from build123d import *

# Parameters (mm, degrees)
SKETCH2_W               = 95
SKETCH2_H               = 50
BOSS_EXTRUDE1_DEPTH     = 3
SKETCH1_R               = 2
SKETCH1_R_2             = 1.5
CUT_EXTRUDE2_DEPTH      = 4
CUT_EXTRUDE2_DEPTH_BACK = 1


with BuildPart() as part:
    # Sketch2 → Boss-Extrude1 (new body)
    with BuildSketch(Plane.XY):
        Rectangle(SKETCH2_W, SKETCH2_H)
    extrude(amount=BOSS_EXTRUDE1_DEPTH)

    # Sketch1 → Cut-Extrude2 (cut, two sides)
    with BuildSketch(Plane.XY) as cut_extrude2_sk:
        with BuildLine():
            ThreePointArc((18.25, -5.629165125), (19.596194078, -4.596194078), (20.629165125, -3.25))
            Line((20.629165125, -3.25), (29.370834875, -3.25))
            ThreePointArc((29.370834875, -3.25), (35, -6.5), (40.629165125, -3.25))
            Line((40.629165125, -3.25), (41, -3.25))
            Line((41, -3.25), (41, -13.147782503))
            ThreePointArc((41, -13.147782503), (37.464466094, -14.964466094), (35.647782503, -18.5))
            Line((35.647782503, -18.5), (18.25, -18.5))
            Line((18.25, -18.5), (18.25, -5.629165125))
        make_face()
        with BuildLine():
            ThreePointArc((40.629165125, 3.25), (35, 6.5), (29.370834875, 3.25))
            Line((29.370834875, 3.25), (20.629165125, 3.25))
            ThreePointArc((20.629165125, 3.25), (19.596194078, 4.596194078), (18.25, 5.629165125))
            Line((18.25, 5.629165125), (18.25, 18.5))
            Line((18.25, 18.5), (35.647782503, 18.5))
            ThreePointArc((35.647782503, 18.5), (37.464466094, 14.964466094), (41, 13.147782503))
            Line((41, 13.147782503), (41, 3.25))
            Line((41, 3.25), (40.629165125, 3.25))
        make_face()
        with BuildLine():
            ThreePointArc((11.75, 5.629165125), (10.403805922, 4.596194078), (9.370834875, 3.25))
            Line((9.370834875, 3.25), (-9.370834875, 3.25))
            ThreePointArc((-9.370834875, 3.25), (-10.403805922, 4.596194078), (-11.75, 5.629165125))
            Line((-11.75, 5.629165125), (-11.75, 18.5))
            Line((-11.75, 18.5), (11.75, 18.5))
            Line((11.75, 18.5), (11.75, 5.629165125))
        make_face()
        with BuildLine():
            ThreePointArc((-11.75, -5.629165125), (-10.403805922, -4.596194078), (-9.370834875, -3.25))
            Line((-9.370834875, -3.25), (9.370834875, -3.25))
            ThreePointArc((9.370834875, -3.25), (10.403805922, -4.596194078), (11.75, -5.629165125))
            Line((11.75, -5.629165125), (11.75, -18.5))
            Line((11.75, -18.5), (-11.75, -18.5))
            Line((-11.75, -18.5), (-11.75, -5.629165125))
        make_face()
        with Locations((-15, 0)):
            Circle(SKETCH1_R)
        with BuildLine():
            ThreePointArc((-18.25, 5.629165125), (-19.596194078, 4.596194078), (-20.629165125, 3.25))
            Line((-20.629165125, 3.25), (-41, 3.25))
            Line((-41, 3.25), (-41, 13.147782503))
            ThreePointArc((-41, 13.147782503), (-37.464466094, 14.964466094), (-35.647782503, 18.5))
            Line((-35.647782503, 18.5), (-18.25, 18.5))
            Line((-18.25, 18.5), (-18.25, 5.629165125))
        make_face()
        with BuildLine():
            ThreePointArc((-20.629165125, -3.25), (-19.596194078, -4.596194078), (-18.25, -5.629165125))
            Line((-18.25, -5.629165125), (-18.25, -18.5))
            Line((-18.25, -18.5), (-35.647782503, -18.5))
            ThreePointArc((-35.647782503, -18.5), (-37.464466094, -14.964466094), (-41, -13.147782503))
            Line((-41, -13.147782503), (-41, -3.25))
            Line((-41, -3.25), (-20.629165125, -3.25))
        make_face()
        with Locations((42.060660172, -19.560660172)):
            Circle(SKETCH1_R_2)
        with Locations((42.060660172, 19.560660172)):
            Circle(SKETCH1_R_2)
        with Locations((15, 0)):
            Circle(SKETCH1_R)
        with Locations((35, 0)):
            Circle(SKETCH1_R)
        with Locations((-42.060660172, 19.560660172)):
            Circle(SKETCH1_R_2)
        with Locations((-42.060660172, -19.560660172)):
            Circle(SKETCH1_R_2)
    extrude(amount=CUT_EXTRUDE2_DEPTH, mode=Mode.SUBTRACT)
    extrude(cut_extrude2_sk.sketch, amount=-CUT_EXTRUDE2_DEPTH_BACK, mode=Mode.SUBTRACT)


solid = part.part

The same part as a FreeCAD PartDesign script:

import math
import FreeCAD as App
import Part
import Sketcher

V = App.Vector

doc = App.newDocument("Part")
params = doc.addObject("Spreadsheet::Sheet", "Params")
for row, (alias, value) in enumerate([
    ("sketch1_width", "95 mm"),
    ("sketch1_height", "50 mm"),
    ("pad1_length", "3 mm"),
    ("sketch2_diameter", "4 mm"),
    ("sketch2_diameter2", "3 mm"),
    ("sketch2_radius", "6.5 mm"),
    ("sketch2_width", "23.5 mm"),
], start=1):
    params.set(f"A{row}", alias)
    params.set(f"B{row}", "=" + value)
    params.setAlias(f"B{row}", alias)

body = doc.addObject("PartDesign::Body", "Body")

# Sketch on XY plane
sketch1 = body.newObject("Sketcher::SketchObject", "Sketch")
sketch1.AttachmentSupport = (doc.getObject("XY_Plane"), [""])
sketch1.MapMode = "FlatFace"
sketch1.addGeometry([
    Part.LineSegment(V(-48, 25, 0), V(-48, -25, 0)),
    Part.LineSegment(V(-48, -25, 0), V(48, -25, 0)),
    Part.LineSegment(V(48, -25, 0), V(48, 25, 0)),
    Part.LineSegment(V(48, 25, 0), V(-48, 25, 0)),
], False)
sketch1.addConstraint([
    Sketcher.Constraint("Coincident", 0, 2, 1, 1),
    Sketcher.Constraint("Coincident", 1, 2, 2, 1),
    Sketcher.Constraint("Coincident", 2, 2, 3, 1),
    Sketcher.Constraint("Coincident", 3, 2, 0, 1),
    Sketcher.Constraint("Vertical", 0),
    Sketcher.Constraint("Horizontal", 1),
    Sketcher.Constraint("Vertical", 2),
    Sketcher.Constraint("Horizontal", 3),
    Sketcher.Constraint("Symmetric", 0, 2, 2, 2, -1, 1),
    Sketcher.Constraint("DistanceX", 1, 1, 1, 2, 95.0),
    Sketcher.Constraint("DistanceY", 0, 2, 0, 1, 50.0),
])
sketch1.setExpression("Constraints[9]", "Params.sketch1_width")
sketch1.setExpression("Constraints[10]", "Params.sketch1_height")
pad1 = body.newObject("PartDesign::Pad", "Pad")
pad1.Profile = sketch1
pad1.setExpression("Length", "Params.pad1_length")

# Sketch on XY plane
sketch2 = body.newObject("Sketcher::SketchObject", "Sketch001")
sketch2.AttachmentSupport = (doc.getObject("XY_Plane"), [""])
sketch2.MapMode = "FlatFace"
sketch2.addGeometry([
    Part.ArcOfCircle(Part.Circle(V(15, 0, 0), V(0, 0, 1), 6.5), math.radians(-60), math.radians(-30)),  # 0
    Part.LineSegment(V(18.25, -5.63, 0), V(18.25, -18.5, 0)),  # 1
    Part.LineSegment(V(18.25, -18.5, 0), V(35.65, -18.5, 0)),  # 2
    Part.ArcOfCircle(Part.Circle(V(42.06, -19.56, 0), V(0, 0, 1), 6.5), math.radians(99), math.radians(171)),  # 3
    Part.LineSegment(V(41, -13.15, 0), V(41, -3.25, 0)),  # 4
    Part.LineSegment(V(41, -3.25, 0), V(40.63, -3.25, 0)),  # 5
    Part.ArcOfCircle(Part.Circle(V(35, 0, 0), V(0, 0, 1), 6.5), math.radians(-150), math.radians(-30)),  # 6
    Part.LineSegment(V(29.37, -3.25, 0), V(20.63, -3.25, 0)),  # 7
    Part.ArcOfCircle(Part.Circle(V(35, 0, 0), V(0, 0, 1), 6.5), math.radians(30), math.radians(150)),  # 8
    Part.LineSegment(V(40.63, 3.25, 0), V(41, 3.25, 0)),  # 9
    Part.LineSegment(V(41, 3.25, 0), V(41, 13.15, 0)),  # 10
    Part.ArcOfCircle(Part.Circle(V(42.06, 19.56, 0), V(0, 0, 1), 6.5), math.radians(-171), math.radians(-99)),  # 11
    Part.LineSegment(V(35.65, 18.5, 0), V(18.25, 18.5, 0)),  # 12
    Part.LineSegment(V(18.25, 18.5, 0), V(18.25, 5.63, 0)),  # 13
    Part.ArcOfCircle(Part.Circle(V(15, 0, 0), V(0, 0, 1), 6.5), math.radians(30), math.radians(60)),  # 14
    Part.LineSegment(V(20.63, 3.25, 0), V(29.37, 3.25, 0)),  # 15
    Part.ArcOfCircle(Part.Circle(V(15, 0, 0), V(0, 0, 1), 6.5), math.radians(120), math.radians(150)),  # 16
    Part.LineSegment(V(11.75, 5.63, 0), V(11.75, 18.5, 0)),  # 17
    Part.LineSegment(V(11.75, 18.5, 0), V(-11.75, 18.5, 0)),  # 18
    Part.LineSegment(V(-11.75, 18.5, 0), V(-11.75, 5.63, 0)),  # 19
    Part.ArcOfCircle(Part.Circle(V(-15, 0, 0), V(0, 0, 1), 6.5), math.radians(30), math.radians(60)),  # 20
    Part.LineSegment(V(-9.37, 3.25, 0), V(9.37, 3.25, 0)),  # 21
    Part.ArcOfCircle(Part.Circle(V(-15, 0, 0), V(0, 0, 1), 6.5), math.radians(-60), math.radians(-30)),  # 22
    Part.LineSegment(V(-11.75, -5.63, 0), V(-11.75, -18.5, 0)),  # 23
    Part.LineSegment(V(-11.75, -18.5, 0), V(11.75, -18.5, 0)),  # 24
    Part.LineSegment(V(11.75, -18.5, 0), V(11.75, -5.63, 0)),  # 25
    Part.ArcOfCircle(Part.Circle(V(15, 0, 0), V(0, 0, 1), 6.5), math.radians(-150), math.radians(-120)),  # 26
    Part.LineSegment(V(9.37, -3.25, 0), V(-9.37, -3.25, 0)),  # 27
    Part.Circle(V(-15, 0, 0), V(0, 0, 1), 2),  # 28
    Part.ArcOfCircle(Part.Circle(V(-15, 0, 0), V(0, 0, 1), 6.5), math.radians(120), math.radians(150)),  # 29
    Part.LineSegment(V(-18.25, 5.63, 0), V(-18.25, 18.5, 0)),  # 30
    Part.LineSegment(V(-18.25, 18.5, 0), V(-35.65, 18.5, 0)),  # 31
    Part.ArcOfCircle(Part.Circle(V(-42.06, 19.56, 0), V(0, 0, 1), 6.5), math.radians(-81), math.radians(-9)),  # 32
    Part.LineSegment(V(-41, 13.15, 0), V(-41, 3.25, 0)),  # 33
    Part.LineSegment(V(-41, 3.25, 0), V(-20.63, 3.25, 0)),  # 34
    Part.ArcOfCircle(Part.Circle(V(-15, 0, 0), V(0, 0, 1), 6.5), math.radians(-150), math.radians(-120)),  # 35
    Part.LineSegment(V(-20.63, -3.25, 0), V(-41, -3.25, 0)),  # 36
    Part.LineSegment(V(-41, -3.25, 0), V(-41, -13.15, 0)),  # 37
    Part.ArcOfCircle(Part.Circle(V(-42.06, -19.56, 0), V(0, 0, 1), 6.5), math.radians(9), math.radians(81)),  # 38
    Part.LineSegment(V(-35.65, -18.5, 0), V(-18.25, -18.5, 0)),  # 39
    Part.LineSegment(V(-18.25, -18.5, 0), V(-18.25, -5.63, 0)),  # 40
    Part.Circle(V(42.06, -19.56, 0), V(0, 0, 1), 1.5),  # 41
    Part.Circle(V(42.06, 19.56, 0), V(0, 0, 1), 1.5),  # 42
    Part.Circle(V(15, 0, 0), V(0, 0, 1), 2),  # 43
    Part.Circle(V(35, 0, 0), V(0, 0, 1), 2),  # 44
    Part.Circle(V(-42.06, 19.56, 0), V(0, 0, 1), 1.5),  # 45
    Part.Circle(V(-42.06, -19.56, 0), V(0, 0, 1), 1.5),  # 46
], False)
sketch2.addConstraint([
    Sketcher.Constraint("Coincident", 0, 1, 1, 1),
    Sketcher.Constraint("Coincident", 1, 2, 2, 1),
    Sketcher.Constraint("Coincident", 2, 2, 3, 2),
    Sketcher.Constraint("Coincident", 3, 1, 4, 1),
    Sketcher.Constraint("Coincident", 4, 2, 5, 1),
    Sketcher.Constraint("Coincident", 5, 2, 6, 2),
    Sketcher.Constraint("Coincident", 6, 1, 7, 1),
    Sketcher.Constraint("Coincident", 7, 2, 0, 2),
    Sketcher.Constraint("Coincident", 8, 1, 9, 1),
    Sketcher.Constraint("Coincident", 9, 2, 10, 1),
    Sketcher.Constraint("Coincident", 10, 2, 11, 2),
    Sketcher.Constraint("Coincident", 11, 1, 12, 1),
    Sketcher.Constraint("Coincident", 12, 2, 13, 1),
    Sketcher.Constraint("Coincident", 13, 2, 14, 2),
    Sketcher.Constraint("Coincident", 14, 1, 15, 1),
    Sketcher.Constraint("Coincident", 15, 2, 8, 2),
    Sketcher.Constraint("Coincident", 16, 1, 17, 1),
    Sketcher.Constraint("Coincident", 17, 2, 18, 1),
    Sketcher.Constraint("Coincident", 18, 2, 19, 1),
    Sketcher.Constraint("Coincident", 19, 2, 20, 2),
    Sketcher.Constraint("Coincident", 20, 1, 21, 1),
    Sketcher.Constraint("Coincident", 21, 2, 16, 2),
    Sketcher.Constraint("Coincident", 22, 1, 23, 1),
    Sketcher.Constraint("Coincident", 23, 2, 24, 1),
    Sketcher.Constraint("Coincident", 24, 2, 25, 1),
    Sketcher.Constraint("Coincident", 25, 2, 26, 2),
    Sketcher.Constraint("Coincident", 26, 1, 27, 1),
    Sketcher.Constraint("Coincident", 27, 2, 22, 2),
    Sketcher.Constraint("Coincident", 29, 1, 30, 1),
    Sketcher.Constraint("Coincident", 30, 2, 31, 1),
    Sketcher.Constraint("Coincident", 31, 2, 32, 2),
    Sketcher.Constraint("Coincident", 32, 1, 33, 1),
    Sketcher.Constraint("Coincident", 33, 2, 34, 1),
    Sketcher.Constraint("Coincident", 34, 2, 29, 2),
    Sketcher.Constraint("Coincident", 35, 1, 36, 1),
    Sketcher.Constraint("Coincident", 36, 2, 37, 1),
    Sketcher.Constraint("Coincident", 37, 2, 38, 2),
    Sketcher.Constraint("Coincident", 38, 1, 39, 1),
    Sketcher.Constraint("Coincident", 39, 2, 40, 1),
    Sketcher.Constraint("Coincident", 40, 2, 35, 2),
    Sketcher.Constraint("Vertical", 1),
    Sketcher.Constraint("Horizontal", 2),
    Sketcher.Constraint("Vertical", 4),
    Sketcher.Constraint("Horizontal", 5),
    Sketcher.Constraint("Horizontal", 7),
    Sketcher.Constraint("Horizontal", 9),
    Sketcher.Constraint("Vertical", 10),
    Sketcher.Constraint("Horizontal", 12),
    Sketcher.Constraint("Vertical", 13),
    Sketcher.Constraint("Horizontal", 15),
    Sketcher.Constraint("Vertical", 17),
    Sketcher.Constraint("Horizontal", 18),
    Sketcher.Constraint("Vertical", 19),
    Sketcher.Constraint("Horizontal", 21),
    Sketcher.Constraint("Vertical", 23),
    Sketcher.Constraint("Horizontal", 24),
    Sketcher.Constraint("Vertical", 25),
    Sketcher.Constraint("Horizontal", 27),
    Sketcher.Constraint("Vertical", 30),
    Sketcher.Constraint("Horizontal", 31),
    Sketcher.Constraint("Vertical", 33),
    Sketcher.Constraint("Horizontal", 34),
    Sketcher.Constraint("Horizontal", 36),
    Sketcher.Constraint("Vertical", 37),
    Sketcher.Constraint("Horizontal", 39),
    Sketcher.Constraint("Vertical", 40),
    Sketcher.Constraint("Coincident", 8, 3, 6, 3),
    Sketcher.Constraint("Coincident", 14, 3, 0, 3),
    Sketcher.Constraint("Coincident", 16, 3, 0, 3),
    Sketcher.Constraint("Coincident", 22, 3, 20, 3),
    Sketcher.Constraint("Coincident", 26, 3, 0, 3),
    Sketcher.Constraint("Coincident", 28, 3, 20, 3),
    Sketcher.Constraint("Coincident", 29, 3, 20, 3),
    Sketcher.Constraint("Coincident", 35, 3, 20, 3),
    Sketcher.Constraint("Coincident", 41, 3, 3, 3),
    Sketcher.Constraint("Coincident", 42, 3, 11, 3),
    Sketcher.Constraint("Coincident", 43, 3, 0, 3),
    Sketcher.Constraint("Coincident", 44, 3, 6, 3),
    Sketcher.Constraint("Coincident", 45, 3, 32, 3),
    Sketcher.Constraint("Coincident", 46, 3, 38, 3),
    Sketcher.Constraint("Equal", 0, 3),
    Sketcher.Constraint("Equal", 3, 6),
    Sketcher.Constraint("Equal", 6, 8),
    Sketcher.Constraint("Equal", 8, 11),
    Sketcher.Constraint("Equal", 11, 14),
    Sketcher.Constraint("Equal", 14, 16),
    Sketcher.Constraint("Equal", 16, 20),
    Sketcher.Constraint("Equal", 20, 22),
    Sketcher.Constraint("Equal", 22, 26),
    Sketcher.Constraint("Equal", 26, 29),
    Sketcher.Constraint("Equal", 29, 32),
    Sketcher.Constraint("Equal", 32, 35),
    Sketcher.Constraint("Equal", 35, 38),
    Sketcher.Constraint("Equal", 41, 42),
    Sketcher.Constraint("Equal", 28, 43),
    Sketcher.Constraint("Equal", 43, 44),
    Sketcher.Constraint("Equal", 42, 45),
    Sketcher.Constraint("Equal", 45, 46),
    Sketcher.Constraint("Symmetric", 0, 3, 20, 3, -1, 1),
    Sketcher.Constraint("Symmetric", 3, 3, 32, 3, -1, 1),
    Sketcher.Constraint("Symmetric", 11, 3, 38, 3, -1, 1),
    Sketcher.Constraint("Symmetric", 17, 2, 23, 2, -1, 1),
    Sketcher.Constraint("Symmetric", 1, 2, 30, 2, -1, 1),
    Sketcher.Constraint("Symmetric", 4, 2, 33, 2, -1, 1),
    Sketcher.Constraint("Symmetric", 9, 2, 36, 2, -1, 1),
    Sketcher.Constraint("Symmetric", 12, 2, 39, 2, -1, 1),
    Sketcher.Constraint("Symmetric", 11, 3, 32, 3, -2),
    Sketcher.Constraint("Symmetric", 16, 1, 19, 2, -2),
    Sketcher.Constraint("Symmetric", 12, 2, 30, 2, -2),
    Sketcher.Constraint("Symmetric", 9, 2, 33, 2, -2),
    Sketcher.Constraint("Symmetric", 6, 1, 15, 2, -1),
    Sketcher.Constraint("Horizontal", 5, 2, 6, 1),
    Sketcher.Constraint("Horizontal", 13, 2, 16, 1),
    Sketcher.Constraint("Horizontal", 12, 2, 17, 2),
    Sketcher.Constraint("Horizontal", 15, 2, 20, 1),
    Sketcher.Constraint("Horizontal", 22, 1, 25, 2),
    Sketcher.Constraint("Horizontal", 7, 2, 26, 1),
    Sketcher.Constraint("Diameter", 28, 4.0),
    Sketcher.Constraint("Diameter", 41, 3.0),
    Sketcher.Constraint("Radius", 0, 6.5),
    Sketcher.Constraint("DistanceX", 18, 2, 18, 1, 23.5),
    Sketcher.Constraint("DistanceX", -1, 1, 0, 3, 15.0),
    Sketcher.Constraint("DistanceX", -1, 1, 6, 3, 35.0),
    Sketcher.Constraint("DistanceX", -1, 1, 3, 1, 41.0),
    Sketcher.Constraint("DistanceY", 1, 2, -1, 1, 18.5),
    Sketcher.Constraint("DistanceY", 4, 2, -1, 1, 3.25),
    Sketcher.Constraint("DistanceX", 2, 1, 2, 2, 17.397783),
    Sketcher.Constraint("DistanceY", 4, 1, 4, 2, 9.897783),
])
sketch2.setExpression("Constraints[117]", "Params.sketch2_diameter")
sketch2.setExpression("Constraints[118]", "Params.sketch2_diameter2")
sketch2.setExpression("Constraints[119]", "Params.sketch2_radius")
sketch2.setExpression("Constraints[120]", "Params.sketch2_width")
pocket1 = body.newObject("PartDesign::Pocket", "Pocket")
pocket1.Profile = sketch2
pocket1.Type = "ThroughAll"
pocket1.Midplane = True

doc.recompute()
